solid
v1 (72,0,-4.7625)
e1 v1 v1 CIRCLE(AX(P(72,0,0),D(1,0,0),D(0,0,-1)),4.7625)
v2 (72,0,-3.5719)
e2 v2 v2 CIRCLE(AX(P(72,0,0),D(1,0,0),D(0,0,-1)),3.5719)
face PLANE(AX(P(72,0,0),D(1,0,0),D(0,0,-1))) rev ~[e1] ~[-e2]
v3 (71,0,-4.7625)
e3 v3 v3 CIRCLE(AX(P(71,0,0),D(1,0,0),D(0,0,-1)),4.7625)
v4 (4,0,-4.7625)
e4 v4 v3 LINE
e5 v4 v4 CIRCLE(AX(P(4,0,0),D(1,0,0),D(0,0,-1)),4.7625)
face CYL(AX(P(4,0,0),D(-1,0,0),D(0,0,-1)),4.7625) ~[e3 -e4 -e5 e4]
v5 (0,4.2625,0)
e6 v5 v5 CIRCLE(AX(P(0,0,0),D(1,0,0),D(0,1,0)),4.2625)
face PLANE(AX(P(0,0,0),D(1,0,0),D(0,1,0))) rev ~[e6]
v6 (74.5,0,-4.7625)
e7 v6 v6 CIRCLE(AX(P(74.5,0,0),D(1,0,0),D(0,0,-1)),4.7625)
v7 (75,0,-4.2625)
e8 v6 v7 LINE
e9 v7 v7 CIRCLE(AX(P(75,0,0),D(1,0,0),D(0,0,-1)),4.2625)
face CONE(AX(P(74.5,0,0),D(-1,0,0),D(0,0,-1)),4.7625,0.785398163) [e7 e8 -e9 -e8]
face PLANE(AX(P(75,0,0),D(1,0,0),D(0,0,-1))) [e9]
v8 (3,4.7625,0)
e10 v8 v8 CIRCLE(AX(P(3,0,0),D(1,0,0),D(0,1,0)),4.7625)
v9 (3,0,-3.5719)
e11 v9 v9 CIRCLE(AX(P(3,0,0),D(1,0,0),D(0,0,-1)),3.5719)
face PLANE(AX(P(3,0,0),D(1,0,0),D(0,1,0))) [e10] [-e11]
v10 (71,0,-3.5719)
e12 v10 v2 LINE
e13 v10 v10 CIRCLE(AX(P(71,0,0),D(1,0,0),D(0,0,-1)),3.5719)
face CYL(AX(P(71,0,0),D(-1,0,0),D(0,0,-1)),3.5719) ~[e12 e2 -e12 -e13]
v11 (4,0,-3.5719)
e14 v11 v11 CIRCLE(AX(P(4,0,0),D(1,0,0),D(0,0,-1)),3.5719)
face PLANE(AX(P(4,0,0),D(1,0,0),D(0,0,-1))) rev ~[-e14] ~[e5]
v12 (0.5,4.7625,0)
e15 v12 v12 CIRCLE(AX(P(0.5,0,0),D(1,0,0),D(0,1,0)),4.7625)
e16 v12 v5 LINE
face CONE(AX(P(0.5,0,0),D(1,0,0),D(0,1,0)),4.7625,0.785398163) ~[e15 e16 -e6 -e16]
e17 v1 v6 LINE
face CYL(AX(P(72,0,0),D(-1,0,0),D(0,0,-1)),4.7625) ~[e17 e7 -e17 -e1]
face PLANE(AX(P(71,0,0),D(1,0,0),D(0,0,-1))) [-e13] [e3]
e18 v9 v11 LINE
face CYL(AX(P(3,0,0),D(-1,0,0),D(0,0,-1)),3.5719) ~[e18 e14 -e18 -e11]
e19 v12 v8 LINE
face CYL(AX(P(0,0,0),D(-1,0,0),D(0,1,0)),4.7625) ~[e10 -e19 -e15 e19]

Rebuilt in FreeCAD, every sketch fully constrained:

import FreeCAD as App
import Part
import Sketcher


def edges_at(feature, points):
    """Names of the edges that pass closest to the given points."""
    edges = feature.Shape.Edges
    near = lambda p: min(range(len(edges)), key=lambda i: edges[i].distToShape(Part.Vertex(*p))[0])
    return sorted({f"Edge{near(p) + 1}" for p in points})

doc = App.newDocument("Part")
params = doc.addObject("Spreadsheet::Sheet", "Params")
for row, (alias, value) in enumerate([
    ("pad1_length", "3 mm"),
    ("pad2_length", "1 mm"),
    ("pad3_length", "67 mm"),
    ("pad4_length", "1 mm"),
    ("pad5_length", "3 mm"),
    ("chamfer_size", "0.5 mm"),
], start=1):
    params.set(f"A{row}", alias)
    params.set(f"B{row}", "=" + value)
    params.setAlias(f"B{row}", alias)

body = doc.addObject("PartDesign::Body", "Body")

# Sketch on YZ plane
sketch1 = doc.addObject("Sketcher::SketchObject", "Sketch")
body.addObject(sketch1)
sketch1.AttachmentSupport = (doc.YZ_Plane, [""])
sketch1.MapMode = "FlatFace"
sketch1.addGeometry(Part.Circle(App.Vector(0, 0, 0), App.Vector(0, 0, 1), 4.8), False)
sketch1.addConstraint(Sketcher.Constraint("Coincident", 0, 3, -1, 1))
sketch1.addConstraint(Sketcher.Constraint("Diameter", 0, 9.525))
pad1 = doc.addObject("PartDesign::Pad", "Pad")
body.addObject(pad1)
pad1.Profile = sketch1
pad1.setExpression("Length", "Params.pad1_length")

# Sketch on YZ plane
sketch2 = doc.addObject("Sketcher::SketchObject", "Sketch001")
body.addObject(sketch2)
sketch2.AttachmentSupport = (doc.YZ_Plane, [""])
sketch2.MapMode = "FlatFace"
sketch2.AttachmentOffset = App.Placement(App.Vector(0, 0, 3), App.Rotation())
sketch2.addGeometry(Part.Circle(App.Vector(0, 0, 0), App.Vector(0, 0, 1), 3.6), False)
sketch2.addConstraint(Sketcher.Constraint("Coincident", 0, 3, -1, 1))
sketch2.addConstraint(Sketcher.Constraint("Diameter", 0, 7.1438))
pad2 = doc.addObject("PartDesign::Pad", "Pad001")
body.addObject(pad2)
pad2.Profile = sketch2
pad2.setExpression("Length", "Params.pad2_length")

# Sketch on YZ plane
sketch3 = doc.addObject("Sketcher::SketchObject", "Sketch002")
body.addObject(sketch3)
sketch3.AttachmentSupport = (doc.YZ_Plane, [""])
sketch3.MapMode = "FlatFace"
sketch3.AttachmentOffset = App.Placement(App.Vector(0, 0, 4), App.Rotation())
sketch3.addGeometry(Part.Circle(App.Vector(0, 0, 0), App.Vector(0, 0, 1), 4.8), False)
sketch3.addConstraint(Sketcher.Constraint("Coincident", 0, 3, -1, 1))
sketch3.addConstraint(Sketcher.Constraint("Diameter", 0, 9.525))
pad3 = doc.addObject("PartDesign::Pad", "Pad002")
body.addObject(pad3)
pad3.Profile = sketch3
pad3.setExpression("Length", "Params.pad3_length")

# Sketch on YZ plane
sketch4 = doc.addObject("Sketcher::SketchObject", "Sketch003")
body.addObject(sketch4)
sketch4.AttachmentSupport = (doc.YZ_Plane, [""])
sketch4.MapMode = "FlatFace"
sketch4.AttachmentOffset = App.Placement(App.Vector(0, 0, 71), App.Rotation())
sketch4.addGeometry(Part.Circle(App.Vector(0, 0, 0), App.Vector(0, 0, 1), 3.6), False)
sketch4.addConstraint(Sketcher.Constraint("Coincident", 0, 3, -1, 1))
sketch4.addConstraint(Sketcher.Constraint("Diameter", 0, 7.1438))
pad4 = doc.addObject("PartDesign::Pad", "Pad003")
body.addObject(pad4)
pad4.Profile = sketch4
pad4.setExpression("Length", "Params.pad4_length")

# Sketch on YZ plane
sketch5 = doc.addObject("Sketcher::SketchObject", "Sketch004")
body.addObject(sketch5)
sketch5.AttachmentSupport = (doc.YZ_Plane, [""])
sketch5.MapMode = "FlatFace"
sketch5.AttachmentOffset = App.Placement(App.Vector(0, 0, 72), App.Rotation())
sketch5.addGeometry(Part.Circle(App.Vector(0, 0, 0), App.Vector(0, 0, 1), 4.8), False)
sketch5.addConstraint(Sketcher.Constraint("Coincident", 0, 3, -1, 1))
sketch5.addConstraint(Sketcher.Constraint("Diameter", 0, 9.525))
pad5 = doc.addObject("PartDesign::Pad", "Pad004")
body.addObject(pad5)
pad5.Profile = sketch5
pad5.setExpression("Length", "Params.pad5_length")
doc.recompute()

chamfer = doc.addObject("PartDesign::Chamfer", "Chamfer")
body.addObject(chamfer)
chamfer.Base = (pad5, edges_at(pad5, [(0, -4.763, 0), (75, 0, 4.763)]))
chamfer.setExpression("Size", "Params.chamfer_size")

doc.recompute()
